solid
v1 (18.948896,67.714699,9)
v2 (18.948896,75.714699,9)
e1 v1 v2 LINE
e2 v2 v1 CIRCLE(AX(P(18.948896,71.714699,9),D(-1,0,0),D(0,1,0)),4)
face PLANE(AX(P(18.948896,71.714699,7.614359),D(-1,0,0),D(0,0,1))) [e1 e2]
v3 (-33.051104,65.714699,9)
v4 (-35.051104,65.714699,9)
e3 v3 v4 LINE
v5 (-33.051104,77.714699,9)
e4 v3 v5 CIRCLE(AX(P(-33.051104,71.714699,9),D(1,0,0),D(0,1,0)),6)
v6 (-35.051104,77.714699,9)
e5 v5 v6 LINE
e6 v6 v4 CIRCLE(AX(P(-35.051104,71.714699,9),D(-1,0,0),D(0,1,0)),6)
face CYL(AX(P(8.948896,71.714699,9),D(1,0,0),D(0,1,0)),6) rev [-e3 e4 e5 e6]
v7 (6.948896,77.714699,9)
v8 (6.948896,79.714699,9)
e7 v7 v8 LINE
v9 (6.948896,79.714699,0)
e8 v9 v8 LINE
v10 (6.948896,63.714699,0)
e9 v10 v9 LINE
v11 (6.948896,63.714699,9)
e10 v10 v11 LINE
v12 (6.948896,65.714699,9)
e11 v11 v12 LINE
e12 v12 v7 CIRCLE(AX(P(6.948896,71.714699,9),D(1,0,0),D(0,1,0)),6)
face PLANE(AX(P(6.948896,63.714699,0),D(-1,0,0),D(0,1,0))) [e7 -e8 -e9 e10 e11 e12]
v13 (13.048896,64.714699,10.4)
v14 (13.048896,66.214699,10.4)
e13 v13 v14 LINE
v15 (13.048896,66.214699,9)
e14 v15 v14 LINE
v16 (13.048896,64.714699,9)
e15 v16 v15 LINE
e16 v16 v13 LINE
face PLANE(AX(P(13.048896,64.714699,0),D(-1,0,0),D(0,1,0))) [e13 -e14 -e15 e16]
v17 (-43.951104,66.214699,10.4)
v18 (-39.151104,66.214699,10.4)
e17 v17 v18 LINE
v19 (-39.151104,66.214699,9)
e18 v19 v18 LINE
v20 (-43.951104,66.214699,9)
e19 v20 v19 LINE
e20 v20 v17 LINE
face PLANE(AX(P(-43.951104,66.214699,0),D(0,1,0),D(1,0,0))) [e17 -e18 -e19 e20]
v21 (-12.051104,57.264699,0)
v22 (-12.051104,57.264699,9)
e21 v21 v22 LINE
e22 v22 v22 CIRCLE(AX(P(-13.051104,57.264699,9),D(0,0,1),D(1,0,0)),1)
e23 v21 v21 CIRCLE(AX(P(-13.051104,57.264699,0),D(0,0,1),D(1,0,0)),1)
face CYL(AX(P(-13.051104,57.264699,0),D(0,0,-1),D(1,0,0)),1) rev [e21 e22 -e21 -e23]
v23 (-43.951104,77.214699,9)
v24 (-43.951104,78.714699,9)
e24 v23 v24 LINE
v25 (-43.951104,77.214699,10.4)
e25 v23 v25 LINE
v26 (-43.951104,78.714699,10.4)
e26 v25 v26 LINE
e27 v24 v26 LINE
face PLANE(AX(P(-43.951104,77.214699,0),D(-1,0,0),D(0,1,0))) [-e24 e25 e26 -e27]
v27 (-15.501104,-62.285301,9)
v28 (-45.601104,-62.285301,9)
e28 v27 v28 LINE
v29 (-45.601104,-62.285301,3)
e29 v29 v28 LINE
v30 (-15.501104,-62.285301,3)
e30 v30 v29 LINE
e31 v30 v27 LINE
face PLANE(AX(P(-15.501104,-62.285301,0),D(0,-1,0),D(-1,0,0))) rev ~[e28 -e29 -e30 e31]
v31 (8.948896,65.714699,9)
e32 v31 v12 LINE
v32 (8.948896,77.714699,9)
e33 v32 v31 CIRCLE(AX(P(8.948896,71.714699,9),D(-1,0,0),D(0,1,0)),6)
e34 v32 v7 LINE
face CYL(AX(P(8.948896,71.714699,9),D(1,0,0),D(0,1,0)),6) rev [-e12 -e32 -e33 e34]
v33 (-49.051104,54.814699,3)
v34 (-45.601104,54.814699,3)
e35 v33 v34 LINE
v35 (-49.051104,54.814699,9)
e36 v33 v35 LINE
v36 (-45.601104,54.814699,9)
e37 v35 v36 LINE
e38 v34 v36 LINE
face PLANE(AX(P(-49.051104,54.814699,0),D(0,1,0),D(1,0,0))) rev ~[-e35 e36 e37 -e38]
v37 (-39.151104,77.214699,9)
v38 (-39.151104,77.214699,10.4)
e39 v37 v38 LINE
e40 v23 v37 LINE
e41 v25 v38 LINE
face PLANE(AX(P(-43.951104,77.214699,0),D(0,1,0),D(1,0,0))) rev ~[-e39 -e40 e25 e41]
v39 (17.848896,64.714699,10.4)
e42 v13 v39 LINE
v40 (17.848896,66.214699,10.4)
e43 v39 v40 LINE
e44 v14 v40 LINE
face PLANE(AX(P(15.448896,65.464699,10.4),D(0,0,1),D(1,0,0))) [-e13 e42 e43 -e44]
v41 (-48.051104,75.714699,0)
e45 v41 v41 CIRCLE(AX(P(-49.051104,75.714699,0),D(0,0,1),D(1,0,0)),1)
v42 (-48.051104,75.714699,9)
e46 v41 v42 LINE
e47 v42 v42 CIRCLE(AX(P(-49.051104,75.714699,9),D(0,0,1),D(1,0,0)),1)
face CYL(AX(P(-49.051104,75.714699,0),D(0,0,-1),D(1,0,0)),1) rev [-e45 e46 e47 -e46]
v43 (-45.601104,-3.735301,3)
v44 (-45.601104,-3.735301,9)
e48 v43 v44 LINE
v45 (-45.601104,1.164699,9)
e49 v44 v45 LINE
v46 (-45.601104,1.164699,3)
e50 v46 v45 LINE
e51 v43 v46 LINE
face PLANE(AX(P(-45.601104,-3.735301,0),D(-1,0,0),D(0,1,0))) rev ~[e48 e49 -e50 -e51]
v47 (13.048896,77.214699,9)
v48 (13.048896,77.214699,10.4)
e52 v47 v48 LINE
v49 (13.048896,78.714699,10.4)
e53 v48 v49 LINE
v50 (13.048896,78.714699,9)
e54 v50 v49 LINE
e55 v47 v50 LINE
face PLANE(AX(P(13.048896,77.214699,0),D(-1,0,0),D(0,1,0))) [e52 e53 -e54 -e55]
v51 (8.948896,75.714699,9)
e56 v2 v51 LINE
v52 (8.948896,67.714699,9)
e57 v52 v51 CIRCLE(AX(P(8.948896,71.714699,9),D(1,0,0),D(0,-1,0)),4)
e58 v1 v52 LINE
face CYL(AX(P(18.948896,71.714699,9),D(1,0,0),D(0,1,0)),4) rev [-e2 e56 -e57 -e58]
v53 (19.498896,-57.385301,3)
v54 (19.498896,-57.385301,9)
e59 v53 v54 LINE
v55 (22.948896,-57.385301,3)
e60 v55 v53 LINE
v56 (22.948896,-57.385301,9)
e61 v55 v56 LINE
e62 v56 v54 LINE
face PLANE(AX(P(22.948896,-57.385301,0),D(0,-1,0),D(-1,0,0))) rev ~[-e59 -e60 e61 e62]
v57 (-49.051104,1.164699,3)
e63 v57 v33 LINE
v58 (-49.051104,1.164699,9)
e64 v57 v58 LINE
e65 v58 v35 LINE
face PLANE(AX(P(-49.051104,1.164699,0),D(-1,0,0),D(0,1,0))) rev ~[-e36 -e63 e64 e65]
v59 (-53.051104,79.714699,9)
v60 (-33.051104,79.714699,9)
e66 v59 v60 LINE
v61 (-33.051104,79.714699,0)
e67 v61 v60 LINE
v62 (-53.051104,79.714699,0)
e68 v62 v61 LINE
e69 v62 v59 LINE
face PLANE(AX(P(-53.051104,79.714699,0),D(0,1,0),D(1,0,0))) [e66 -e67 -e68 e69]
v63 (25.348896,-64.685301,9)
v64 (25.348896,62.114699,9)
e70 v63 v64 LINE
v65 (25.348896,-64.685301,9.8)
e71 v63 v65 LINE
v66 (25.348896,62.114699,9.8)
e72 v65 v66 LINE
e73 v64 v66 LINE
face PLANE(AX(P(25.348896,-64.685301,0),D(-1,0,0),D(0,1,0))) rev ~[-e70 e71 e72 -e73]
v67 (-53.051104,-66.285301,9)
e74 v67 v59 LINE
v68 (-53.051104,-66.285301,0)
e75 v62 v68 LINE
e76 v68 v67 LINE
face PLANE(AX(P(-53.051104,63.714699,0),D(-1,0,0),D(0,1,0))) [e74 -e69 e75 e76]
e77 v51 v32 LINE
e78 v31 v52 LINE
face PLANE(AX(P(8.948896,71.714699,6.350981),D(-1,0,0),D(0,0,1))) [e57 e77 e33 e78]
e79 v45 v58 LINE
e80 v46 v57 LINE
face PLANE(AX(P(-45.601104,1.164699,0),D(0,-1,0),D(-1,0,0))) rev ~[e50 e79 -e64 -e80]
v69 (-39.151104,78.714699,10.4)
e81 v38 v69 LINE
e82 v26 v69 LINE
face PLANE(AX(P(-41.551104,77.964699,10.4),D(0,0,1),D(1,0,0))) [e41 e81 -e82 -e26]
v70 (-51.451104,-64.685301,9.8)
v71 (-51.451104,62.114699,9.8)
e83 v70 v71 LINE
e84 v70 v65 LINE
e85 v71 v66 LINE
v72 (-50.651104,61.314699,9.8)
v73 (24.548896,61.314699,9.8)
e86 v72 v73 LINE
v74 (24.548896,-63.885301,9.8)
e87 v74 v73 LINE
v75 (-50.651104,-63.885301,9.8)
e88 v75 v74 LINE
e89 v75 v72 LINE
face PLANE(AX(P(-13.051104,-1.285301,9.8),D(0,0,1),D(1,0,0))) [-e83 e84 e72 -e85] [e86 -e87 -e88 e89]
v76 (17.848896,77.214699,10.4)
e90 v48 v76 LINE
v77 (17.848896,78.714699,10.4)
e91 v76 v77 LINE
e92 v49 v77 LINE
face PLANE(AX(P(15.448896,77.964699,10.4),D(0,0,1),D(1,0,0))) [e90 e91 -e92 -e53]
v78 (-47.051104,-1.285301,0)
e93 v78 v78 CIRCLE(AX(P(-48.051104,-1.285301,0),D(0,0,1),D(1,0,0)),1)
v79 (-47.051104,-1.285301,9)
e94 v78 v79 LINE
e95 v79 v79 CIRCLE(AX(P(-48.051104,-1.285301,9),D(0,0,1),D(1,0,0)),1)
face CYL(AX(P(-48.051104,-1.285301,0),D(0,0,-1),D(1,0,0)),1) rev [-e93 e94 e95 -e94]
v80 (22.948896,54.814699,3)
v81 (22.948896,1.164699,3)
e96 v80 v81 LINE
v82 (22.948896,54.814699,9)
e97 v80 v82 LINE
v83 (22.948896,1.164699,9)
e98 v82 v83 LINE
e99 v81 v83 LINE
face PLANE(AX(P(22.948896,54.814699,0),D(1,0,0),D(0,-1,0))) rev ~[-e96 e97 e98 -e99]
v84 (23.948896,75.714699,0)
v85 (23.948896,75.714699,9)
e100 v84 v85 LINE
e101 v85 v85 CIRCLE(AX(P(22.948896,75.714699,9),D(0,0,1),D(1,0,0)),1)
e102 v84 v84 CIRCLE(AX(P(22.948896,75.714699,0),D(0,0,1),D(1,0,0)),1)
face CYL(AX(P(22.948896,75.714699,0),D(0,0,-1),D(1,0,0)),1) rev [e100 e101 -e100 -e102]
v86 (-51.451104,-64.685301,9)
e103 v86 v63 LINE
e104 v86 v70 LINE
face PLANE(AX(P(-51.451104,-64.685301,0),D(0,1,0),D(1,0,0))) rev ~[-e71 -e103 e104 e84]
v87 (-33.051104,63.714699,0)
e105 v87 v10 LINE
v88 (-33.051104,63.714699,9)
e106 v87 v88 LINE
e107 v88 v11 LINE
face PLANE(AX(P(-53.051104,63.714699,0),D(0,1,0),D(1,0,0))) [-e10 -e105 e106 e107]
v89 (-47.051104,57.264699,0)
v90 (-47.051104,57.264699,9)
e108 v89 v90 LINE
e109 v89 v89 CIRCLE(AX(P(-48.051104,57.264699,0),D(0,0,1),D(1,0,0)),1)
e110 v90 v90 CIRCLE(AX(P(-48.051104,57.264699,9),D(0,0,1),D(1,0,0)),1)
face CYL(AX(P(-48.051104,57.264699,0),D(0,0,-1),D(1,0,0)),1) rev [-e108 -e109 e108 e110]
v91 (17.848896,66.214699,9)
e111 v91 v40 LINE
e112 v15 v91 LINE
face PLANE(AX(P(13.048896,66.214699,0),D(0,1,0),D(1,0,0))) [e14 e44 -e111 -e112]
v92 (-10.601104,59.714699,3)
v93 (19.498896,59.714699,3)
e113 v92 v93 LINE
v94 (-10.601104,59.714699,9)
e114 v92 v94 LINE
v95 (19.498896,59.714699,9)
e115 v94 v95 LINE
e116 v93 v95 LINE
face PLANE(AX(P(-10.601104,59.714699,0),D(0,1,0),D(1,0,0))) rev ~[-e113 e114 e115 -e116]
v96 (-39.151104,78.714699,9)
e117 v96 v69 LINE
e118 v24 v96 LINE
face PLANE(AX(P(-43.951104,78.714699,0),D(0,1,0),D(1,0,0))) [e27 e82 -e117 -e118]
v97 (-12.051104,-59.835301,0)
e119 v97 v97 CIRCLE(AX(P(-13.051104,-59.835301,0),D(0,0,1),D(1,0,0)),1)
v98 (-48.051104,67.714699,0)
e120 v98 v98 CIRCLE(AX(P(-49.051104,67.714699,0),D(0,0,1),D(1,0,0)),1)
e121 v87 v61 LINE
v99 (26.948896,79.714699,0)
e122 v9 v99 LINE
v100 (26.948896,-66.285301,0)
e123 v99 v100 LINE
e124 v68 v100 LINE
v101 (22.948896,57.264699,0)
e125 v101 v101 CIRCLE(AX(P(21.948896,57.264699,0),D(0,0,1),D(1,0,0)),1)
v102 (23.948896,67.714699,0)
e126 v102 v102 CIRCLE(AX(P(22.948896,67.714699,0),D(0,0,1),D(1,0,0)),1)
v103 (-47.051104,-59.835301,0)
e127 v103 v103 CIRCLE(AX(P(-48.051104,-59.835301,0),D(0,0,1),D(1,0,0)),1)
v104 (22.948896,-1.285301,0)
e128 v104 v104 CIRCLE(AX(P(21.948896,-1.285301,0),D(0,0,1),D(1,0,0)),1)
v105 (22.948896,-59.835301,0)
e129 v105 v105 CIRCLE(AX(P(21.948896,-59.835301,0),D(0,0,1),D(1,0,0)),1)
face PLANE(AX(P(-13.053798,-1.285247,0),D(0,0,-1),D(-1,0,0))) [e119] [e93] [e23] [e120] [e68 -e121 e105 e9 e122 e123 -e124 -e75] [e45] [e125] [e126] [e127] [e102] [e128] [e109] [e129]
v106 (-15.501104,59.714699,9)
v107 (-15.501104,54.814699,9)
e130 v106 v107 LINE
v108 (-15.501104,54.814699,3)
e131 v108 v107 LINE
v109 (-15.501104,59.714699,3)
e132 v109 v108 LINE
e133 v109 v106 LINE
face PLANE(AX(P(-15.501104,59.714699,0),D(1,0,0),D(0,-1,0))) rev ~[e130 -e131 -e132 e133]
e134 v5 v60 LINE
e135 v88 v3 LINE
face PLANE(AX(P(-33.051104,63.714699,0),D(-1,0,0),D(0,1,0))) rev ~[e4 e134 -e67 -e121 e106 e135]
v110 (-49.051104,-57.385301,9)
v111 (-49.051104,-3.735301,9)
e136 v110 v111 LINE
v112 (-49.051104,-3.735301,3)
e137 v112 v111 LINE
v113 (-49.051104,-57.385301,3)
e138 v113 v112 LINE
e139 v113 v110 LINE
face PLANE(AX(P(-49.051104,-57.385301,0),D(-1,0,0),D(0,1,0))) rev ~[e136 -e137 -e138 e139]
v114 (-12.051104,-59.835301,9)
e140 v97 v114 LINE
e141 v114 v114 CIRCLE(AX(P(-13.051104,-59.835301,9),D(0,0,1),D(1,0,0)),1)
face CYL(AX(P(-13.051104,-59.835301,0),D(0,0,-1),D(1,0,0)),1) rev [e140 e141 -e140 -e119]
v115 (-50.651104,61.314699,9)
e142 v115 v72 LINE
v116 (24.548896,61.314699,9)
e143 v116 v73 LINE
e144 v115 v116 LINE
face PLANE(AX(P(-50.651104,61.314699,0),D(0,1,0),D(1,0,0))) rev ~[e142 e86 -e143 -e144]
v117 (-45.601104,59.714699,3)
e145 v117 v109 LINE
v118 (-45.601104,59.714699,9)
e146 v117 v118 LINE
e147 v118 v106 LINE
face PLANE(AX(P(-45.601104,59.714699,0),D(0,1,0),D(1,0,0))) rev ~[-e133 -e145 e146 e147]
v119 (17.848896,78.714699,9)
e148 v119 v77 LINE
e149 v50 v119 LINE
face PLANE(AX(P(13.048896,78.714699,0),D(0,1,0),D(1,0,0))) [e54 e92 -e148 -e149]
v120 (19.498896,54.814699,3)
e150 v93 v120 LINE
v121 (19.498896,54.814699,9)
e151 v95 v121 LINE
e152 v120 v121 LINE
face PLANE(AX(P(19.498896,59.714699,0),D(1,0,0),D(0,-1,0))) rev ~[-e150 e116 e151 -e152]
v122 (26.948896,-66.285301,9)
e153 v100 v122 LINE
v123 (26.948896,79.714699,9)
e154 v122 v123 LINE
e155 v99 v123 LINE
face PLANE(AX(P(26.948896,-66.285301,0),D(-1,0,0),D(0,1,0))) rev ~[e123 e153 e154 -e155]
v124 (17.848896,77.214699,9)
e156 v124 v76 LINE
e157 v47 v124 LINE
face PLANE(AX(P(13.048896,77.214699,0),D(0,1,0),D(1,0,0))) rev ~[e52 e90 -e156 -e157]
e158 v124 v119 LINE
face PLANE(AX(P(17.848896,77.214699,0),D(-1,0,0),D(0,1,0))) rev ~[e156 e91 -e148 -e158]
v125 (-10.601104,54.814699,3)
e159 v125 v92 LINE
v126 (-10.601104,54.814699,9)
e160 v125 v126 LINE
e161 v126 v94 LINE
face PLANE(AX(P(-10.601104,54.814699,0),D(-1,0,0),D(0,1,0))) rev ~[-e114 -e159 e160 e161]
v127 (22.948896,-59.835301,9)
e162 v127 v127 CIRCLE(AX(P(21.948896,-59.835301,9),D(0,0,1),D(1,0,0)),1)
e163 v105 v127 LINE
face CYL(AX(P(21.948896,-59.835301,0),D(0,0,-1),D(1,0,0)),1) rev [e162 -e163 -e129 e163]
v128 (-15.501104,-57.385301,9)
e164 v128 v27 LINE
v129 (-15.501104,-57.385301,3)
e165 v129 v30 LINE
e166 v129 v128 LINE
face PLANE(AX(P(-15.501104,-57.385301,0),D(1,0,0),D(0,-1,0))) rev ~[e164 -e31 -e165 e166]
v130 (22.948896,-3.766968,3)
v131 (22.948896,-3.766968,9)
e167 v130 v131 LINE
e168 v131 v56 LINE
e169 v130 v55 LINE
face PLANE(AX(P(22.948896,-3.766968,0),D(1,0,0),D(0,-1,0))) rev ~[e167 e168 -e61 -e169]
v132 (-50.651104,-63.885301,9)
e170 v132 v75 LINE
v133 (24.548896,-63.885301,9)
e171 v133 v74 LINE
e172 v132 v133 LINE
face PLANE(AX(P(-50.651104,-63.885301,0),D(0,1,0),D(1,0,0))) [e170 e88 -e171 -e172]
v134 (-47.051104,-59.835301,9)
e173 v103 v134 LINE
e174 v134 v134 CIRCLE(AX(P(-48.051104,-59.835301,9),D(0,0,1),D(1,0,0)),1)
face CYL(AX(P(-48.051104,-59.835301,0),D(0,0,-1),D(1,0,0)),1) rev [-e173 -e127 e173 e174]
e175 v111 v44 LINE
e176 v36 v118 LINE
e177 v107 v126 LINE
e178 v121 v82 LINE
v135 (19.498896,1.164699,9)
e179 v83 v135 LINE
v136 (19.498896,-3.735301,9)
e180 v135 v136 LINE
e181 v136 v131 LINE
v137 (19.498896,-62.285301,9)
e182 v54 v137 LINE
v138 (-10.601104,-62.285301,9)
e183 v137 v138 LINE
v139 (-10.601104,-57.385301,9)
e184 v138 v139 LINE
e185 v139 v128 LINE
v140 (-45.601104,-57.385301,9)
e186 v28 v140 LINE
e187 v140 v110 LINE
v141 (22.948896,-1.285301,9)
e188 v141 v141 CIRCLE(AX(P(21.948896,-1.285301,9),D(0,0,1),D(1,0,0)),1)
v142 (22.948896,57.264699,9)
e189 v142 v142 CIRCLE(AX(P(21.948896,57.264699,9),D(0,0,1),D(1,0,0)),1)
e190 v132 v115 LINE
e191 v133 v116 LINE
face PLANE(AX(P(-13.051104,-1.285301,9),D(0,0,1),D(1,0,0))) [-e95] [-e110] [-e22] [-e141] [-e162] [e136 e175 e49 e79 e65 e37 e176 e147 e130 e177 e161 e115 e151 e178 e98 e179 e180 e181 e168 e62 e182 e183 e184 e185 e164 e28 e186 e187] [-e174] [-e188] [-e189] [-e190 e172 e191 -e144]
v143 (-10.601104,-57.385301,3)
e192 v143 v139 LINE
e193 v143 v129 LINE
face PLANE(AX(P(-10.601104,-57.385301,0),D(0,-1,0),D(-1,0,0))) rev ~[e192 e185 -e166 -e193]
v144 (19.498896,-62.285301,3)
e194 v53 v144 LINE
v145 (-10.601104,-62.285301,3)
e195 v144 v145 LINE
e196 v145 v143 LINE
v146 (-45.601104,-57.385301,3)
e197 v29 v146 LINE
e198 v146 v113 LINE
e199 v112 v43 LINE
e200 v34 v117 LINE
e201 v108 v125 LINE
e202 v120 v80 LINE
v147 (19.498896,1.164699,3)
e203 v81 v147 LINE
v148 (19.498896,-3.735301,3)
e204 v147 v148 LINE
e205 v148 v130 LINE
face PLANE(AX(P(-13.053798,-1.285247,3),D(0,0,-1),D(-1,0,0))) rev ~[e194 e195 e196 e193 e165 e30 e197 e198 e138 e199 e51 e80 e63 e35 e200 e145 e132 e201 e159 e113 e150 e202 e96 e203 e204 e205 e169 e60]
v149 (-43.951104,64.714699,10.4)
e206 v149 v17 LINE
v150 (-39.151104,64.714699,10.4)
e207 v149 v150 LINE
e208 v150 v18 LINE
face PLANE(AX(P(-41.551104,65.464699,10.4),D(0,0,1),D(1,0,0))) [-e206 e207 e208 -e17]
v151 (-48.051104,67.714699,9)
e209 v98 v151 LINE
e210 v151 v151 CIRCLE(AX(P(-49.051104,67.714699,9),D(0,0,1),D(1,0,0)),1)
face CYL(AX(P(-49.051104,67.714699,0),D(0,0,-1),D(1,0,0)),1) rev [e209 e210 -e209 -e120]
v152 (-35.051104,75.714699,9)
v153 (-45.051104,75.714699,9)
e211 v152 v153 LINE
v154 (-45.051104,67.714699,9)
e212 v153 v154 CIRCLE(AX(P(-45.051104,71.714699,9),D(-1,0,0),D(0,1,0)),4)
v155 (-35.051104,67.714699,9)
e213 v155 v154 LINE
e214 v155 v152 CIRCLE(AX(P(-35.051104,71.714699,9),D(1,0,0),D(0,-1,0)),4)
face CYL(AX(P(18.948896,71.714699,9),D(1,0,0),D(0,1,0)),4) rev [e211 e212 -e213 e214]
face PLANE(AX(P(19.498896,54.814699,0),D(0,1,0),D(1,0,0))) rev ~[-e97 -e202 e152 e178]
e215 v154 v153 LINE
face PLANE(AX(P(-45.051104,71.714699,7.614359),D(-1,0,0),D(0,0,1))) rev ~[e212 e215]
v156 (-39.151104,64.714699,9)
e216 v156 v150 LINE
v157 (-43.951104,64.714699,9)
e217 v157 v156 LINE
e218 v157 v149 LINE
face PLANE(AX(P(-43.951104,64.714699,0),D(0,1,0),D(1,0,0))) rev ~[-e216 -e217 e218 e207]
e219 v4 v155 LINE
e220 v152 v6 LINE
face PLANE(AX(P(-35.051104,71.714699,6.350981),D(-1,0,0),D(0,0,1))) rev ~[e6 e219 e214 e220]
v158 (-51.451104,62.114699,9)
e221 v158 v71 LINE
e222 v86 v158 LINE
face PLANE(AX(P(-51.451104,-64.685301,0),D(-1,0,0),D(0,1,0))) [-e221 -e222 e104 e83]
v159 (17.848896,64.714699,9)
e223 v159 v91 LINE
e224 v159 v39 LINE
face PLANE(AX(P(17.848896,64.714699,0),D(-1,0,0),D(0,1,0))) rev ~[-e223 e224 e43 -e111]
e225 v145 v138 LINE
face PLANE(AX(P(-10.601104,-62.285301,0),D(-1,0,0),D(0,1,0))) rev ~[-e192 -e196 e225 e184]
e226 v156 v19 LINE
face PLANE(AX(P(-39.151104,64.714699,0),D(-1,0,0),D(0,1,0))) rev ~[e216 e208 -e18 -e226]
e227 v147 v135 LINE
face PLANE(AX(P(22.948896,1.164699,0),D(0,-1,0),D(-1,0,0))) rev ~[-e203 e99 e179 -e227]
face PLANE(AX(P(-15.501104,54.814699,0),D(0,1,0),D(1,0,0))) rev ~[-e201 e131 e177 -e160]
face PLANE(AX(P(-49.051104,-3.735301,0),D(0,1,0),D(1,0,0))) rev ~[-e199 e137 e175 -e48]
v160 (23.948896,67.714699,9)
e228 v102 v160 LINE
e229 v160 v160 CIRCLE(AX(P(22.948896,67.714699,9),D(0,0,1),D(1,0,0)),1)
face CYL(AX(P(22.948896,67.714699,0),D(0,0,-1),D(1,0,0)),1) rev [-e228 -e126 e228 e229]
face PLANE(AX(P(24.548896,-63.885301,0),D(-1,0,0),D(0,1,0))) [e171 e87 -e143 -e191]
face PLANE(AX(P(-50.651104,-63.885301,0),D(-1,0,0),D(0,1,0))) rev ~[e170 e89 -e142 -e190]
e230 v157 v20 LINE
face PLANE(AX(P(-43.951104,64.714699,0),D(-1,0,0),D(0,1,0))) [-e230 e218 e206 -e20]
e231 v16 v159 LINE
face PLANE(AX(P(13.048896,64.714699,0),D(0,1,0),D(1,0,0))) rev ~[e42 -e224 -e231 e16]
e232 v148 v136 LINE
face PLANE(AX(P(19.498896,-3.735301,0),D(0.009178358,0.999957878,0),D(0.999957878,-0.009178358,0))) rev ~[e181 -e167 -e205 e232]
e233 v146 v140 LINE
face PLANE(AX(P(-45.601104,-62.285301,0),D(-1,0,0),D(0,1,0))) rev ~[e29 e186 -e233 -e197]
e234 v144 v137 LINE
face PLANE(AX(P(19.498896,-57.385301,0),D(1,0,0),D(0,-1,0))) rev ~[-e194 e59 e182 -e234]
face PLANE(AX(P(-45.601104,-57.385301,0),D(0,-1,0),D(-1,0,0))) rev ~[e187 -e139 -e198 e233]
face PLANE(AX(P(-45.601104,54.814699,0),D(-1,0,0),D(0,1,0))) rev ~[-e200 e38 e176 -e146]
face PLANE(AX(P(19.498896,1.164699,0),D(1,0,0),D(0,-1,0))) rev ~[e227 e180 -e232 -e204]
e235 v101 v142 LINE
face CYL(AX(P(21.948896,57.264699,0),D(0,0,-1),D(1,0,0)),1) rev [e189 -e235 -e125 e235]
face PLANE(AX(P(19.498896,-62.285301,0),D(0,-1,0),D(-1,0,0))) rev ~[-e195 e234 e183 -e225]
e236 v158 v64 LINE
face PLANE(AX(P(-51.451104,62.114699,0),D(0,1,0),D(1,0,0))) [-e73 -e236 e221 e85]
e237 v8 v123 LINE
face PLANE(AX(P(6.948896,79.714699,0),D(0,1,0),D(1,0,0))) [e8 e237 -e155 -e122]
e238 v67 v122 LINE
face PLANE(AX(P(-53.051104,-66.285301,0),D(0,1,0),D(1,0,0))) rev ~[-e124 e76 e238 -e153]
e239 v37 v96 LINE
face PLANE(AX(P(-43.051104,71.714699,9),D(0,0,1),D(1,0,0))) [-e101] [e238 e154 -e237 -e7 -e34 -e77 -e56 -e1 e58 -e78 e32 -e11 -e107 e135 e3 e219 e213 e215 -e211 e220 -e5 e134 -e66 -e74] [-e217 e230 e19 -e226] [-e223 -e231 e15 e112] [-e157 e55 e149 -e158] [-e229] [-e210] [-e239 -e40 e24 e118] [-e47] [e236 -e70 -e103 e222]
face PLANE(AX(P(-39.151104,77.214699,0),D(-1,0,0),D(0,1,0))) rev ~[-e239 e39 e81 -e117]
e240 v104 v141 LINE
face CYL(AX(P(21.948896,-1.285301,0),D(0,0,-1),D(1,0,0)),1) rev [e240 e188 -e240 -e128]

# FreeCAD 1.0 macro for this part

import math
import FreeCAD as App
import Part
import Sketcher

V = App.Vector

doc = App.newDocument("Part")
body = doc.addObject("PartDesign::Body", "Body")
body.AllowCompound = True

sketch1 = doc.addObject("Sketcher::SketchObject", "Sketch")
body.addObject(sketch1)
sketch1.AttachmentSupport = (doc.XY_Plane, [""])
sketch1.MapMode = "FlatFace"
sketch1.addGeometry([
    Part.LineSegment(V(-53.1, -66.3, 0), V(26.9, -66.3, 0)),
    Part.LineSegment(V(26.9, -66.3, 0), V(26.9, 79.7, 0)),
    Part.LineSegment(V(26.9, 79.7, 0), V(6.9, 79.7, 0)),
    Part.LineSegment(V(6.9, 79.7, 0), V(6.9, 63.7, 0)),
    Part.LineSegment(V(6.9, 63.7, 0), V(-33.1, 63.7, 0)),
    Part.LineSegment(V(-33.1, 63.7, 0), V(-33.1, 79.7, 0)),
    Part.LineSegment(V(-33.1, 79.7, 0), V(-53.1, 79.7, 0)),
    Part.LineSegment(V(-53.1, 79.7, 0), V(-53.1, -66.3, 0)),
    Part.LineSegment(V(25.3, -64.7, 0), V(-51.5, -64.7, 0)),
    Part.LineSegment(V(-51.5, -64.7, 0), V(-51.5, 62.1, 0)),
    Part.LineSegment(V(-51.5, 62.1, 0), V(25.3, 62.1, 0)),
    Part.LineSegment(V(25.3, 62.1, 0), V(25.3, -64.7, 0)),
    Part.LineSegment(V(-44, 77.2, 0), V(-44, 78.7, 0)),
    Part.LineSegment(V(-44, 78.7, 0), V(-39.2, 78.7, 0)),
    Part.LineSegment(V(-39.2, 78.7, 0), V(-39.2, 77.2, 0)),
    Part.LineSegment(V(-39.2, 77.2, 0), V(-44, 77.2, 0)),
    Part.Circle(V(-49.1, 67.7, 0), V(0, 0, 1), 1),
    Part.LineSegment(V(-39.2, 64.7, 0), V(-44, 64.7, 0)),
    Part.LineSegment(V(-44, 64.7, 0), V(-44, 66.2, 0)),
    Part.LineSegment(V(-44, 66.2, 0), V(-39.2, 66.2, 0)),
    Part.LineSegment(V(-39.2, 66.2, 0), V(-39.2, 64.7, 0)),
    Part.Circle(V(-49.1, 75.7, 0), V(0, 0, 1), 1),
    Part.Circle(V(22.9, 75.7, 0), V(0, 0, 1), 1),
    Part.LineSegment(V(17.8, 64.7, 0), V(13, 64.7, 0)),
    Part.LineSegment(V(13, 64.7, 0), V(13, 66.2, 0)),
    Part.LineSegment(V(13, 66.2, 0), V(17.8, 66.2, 0)),
    Part.LineSegment(V(17.8, 66.2, 0), V(17.8, 64.7, 0)),
    Part.Circle(V(22.9, 67.7, 0), V(0, 0, 1), 1),
    Part.LineSegment(V(17.8, 77.2, 0), V(13, 77.2, 0)),
    Part.LineSegment(V(13, 77.2, 0), V(13, 78.7, 0)),
    Part.LineSegment(V(13, 78.7, 0), V(17.8, 78.7, 0)),
    Part.LineSegment(V(17.8, 78.7, 0), V(17.8, 77.2, 0)),
    Part.LineSegment(V(-50.7, 61.3, 0), V(-50.7, -63.9, 0)),
    Part.LineSegment(V(-50.7, -63.9, 0), V(24.5, -63.9, 0)),
    Part.LineSegment(V(24.5, -63.9, 0), V(24.5, 61.3, 0)),
    Part.LineSegment(V(24.5, 61.3, 0), V(-50.7, 61.3, 0)),
    Part.Circle(V(-48.1, -59.8, 0), V(0, 0, 1), 1),
    Part.Circle(V(-13.1, -59.8, 0), V(0, 0, 1), 1),
    Part.Circle(V(21.9, -59.8, 0), V(0, 0, 1), 1),
    Part.Circle(V(-48.1, -1.3, 0), V(0, 0, 1), 1),
    Part.Circle(V(-48.1, 57.3, 0), V(0, 0, 1), 1),
    Part.LineSegment(V(-45.6, 1.2, 0), V(-49.1, 1.2, 0)),
    Part.LineSegment(V(-49.1, 1.2, 0), V(-49.1, 54.8, 0)),
    Part.LineSegment(V(-49.1, 54.8, 0), V(-45.6, 54.8, 0)),
    Part.LineSegment(V(-45.6, 54.8, 0), V(-45.6, 59.7, 0)),
    Part.LineSegment(V(-45.6, 59.7, 0), V(-15.5, 59.7, 0)),
    Part.LineSegment(V(-15.5, 59.7, 0), V(-15.5, 54.8, 0)),
    Part.LineSegment(V(-15.5, 54.8, 0), V(-10.6, 54.8, 0)),
    Part.LineSegment(V(-10.6, 54.8, 0), V(-10.6, 59.7, 0)),
    Part.LineSegment(V(-10.6, 59.7, 0), V(19.5, 59.7, 0)),
    Part.LineSegment(V(19.5, 59.7, 0), V(19.5, 54.8, 0)),
    Part.LineSegment(V(19.5, 54.8, 0), V(22.9, 54.8, 0)),
    Part.LineSegment(V(22.9, 54.8, 0), V(22.9, 1.2, 0)),
    Part.LineSegment(V(22.9, 1.2, 0), V(19.5, 1.2, 0)),
    Part.LineSegment(V(19.5, 1.2, 0), V(19.5, -3.7, 0)),
    Part.LineSegment(V(19.5, -3.7, 0), V(22.9, -3.8, 0)),
    Part.LineSegment(V(22.9, -3.8, 0), V(22.9, -57.4, 0)),
    Part.LineSegment(V(22.9, -57.4, 0), V(19.5, -57.4, 0)),
    Part.LineSegment(V(19.5, -57.4, 0), V(19.5, -62.3, 0)),
    Part.LineSegment(V(19.5, -62.3, 0), V(-10.6, -62.3, 0)),
    Part.LineSegment(V(-10.6, -62.3, 0), V(-10.6, -57.4, 0)),
    Part.LineSegment(V(-10.6, -57.4, 0), V(-15.5, -57.4, 0)),
    Part.LineSegment(V(-15.5, -57.4, 0), V(-15.5, -62.3, 0)),
    Part.LineSegment(V(-15.5, -62.3, 0), V(-45.6, -62.3, 0)),
    Part.LineSegment(V(-45.6, -62.3, 0), V(-45.6, -57.4, 0)),
    Part.LineSegment(V(-45.6, -57.4, 0), V(-49.1, -57.4, 0)),
    Part.LineSegment(V(-49.1, -57.4, 0), V(-49.1, -3.7, 0)),
    Part.LineSegment(V(-49.1, -3.7, 0), V(-45.6, -3.7, 0)),
    Part.LineSegment(V(-45.6, -3.7, 0), V(-45.6, 1.2, 0)),
    Part.Circle(V(21.9, -1.3, 0), V(0, 0, 1), 1),
    Part.Circle(V(-13.1, 57.3, 0), V(0, 0, 1), 1),
    Part.Circle(V(21.9, 57.3, 0), V(0, 0, 1), 1),
], False)
sketch1.addConstraint([
    Sketcher.Constraint("Coincident", 0, 2, 1, 1),
    Sketcher.Constraint("Coincident", 1, 2, 2, 1),
    Sketcher.Constraint("Coincident", 2, 2, 3, 1),
    Sketcher.Constraint("Coincident", 3, 2, 4, 1),
    Sketcher.Constraint("Coincident", 4, 2, 5, 1),
    Sketcher.Constraint("Coincident", 5, 2, 6, 1),
    Sketcher.Constraint("Coincident", 6, 2, 7, 1),
    Sketcher.Constraint("Coincident", 7, 2, 0, 1),
    Sketcher.Constraint("Coincident", 8, 2, 9, 1),
    Sketcher.Constraint("Coincident", 9, 2, 10, 1),
    Sketcher.Constraint("Coincident", 10, 2, 11, 1),
    Sketcher.Constraint("Coincident", 11, 2, 8, 1),
    Sketcher.Constraint("Coincident", 12, 2, 13, 1),
    Sketcher.Constraint("Coincident", 13, 2, 14, 1),
    Sketcher.Constraint("Coincident", 14, 2, 15, 1),
    Sketcher.Constraint("Coincident", 15, 2, 12, 1),
    Sketcher.Constraint("Coincident", 17, 2, 18, 1),
    Sketcher.Constraint("Coincident", 18, 2, 19, 1),
    Sketcher.Constraint("Coincident", 19, 2, 20, 1),
    Sketcher.Constraint("Coincident", 20, 2, 17, 1),
    Sketcher.Constraint("Coincident", 23, 2, 24, 1),
    Sketcher.Constraint("Coincident", 24, 2, 25, 1),
    Sketcher.Constraint("Coincident", 25, 2, 26, 1),
    Sketcher.Constraint("Coincident", 26, 2, 23, 1),
    Sketcher.Constraint("Coincident", 28, 2, 29, 1),
    Sketcher.Constraint("Coincident", 29, 2, 30, 1),
    Sketcher.Constraint("Coincident", 30, 2, 31, 1),
    Sketcher.Constraint("Coincident", 31, 2, 28, 1),
    Sketcher.Constraint("Coincident", 32, 2, 33, 1),
    Sketcher.Constraint("Coincident", 33, 2, 34, 1),
    Sketcher.Constraint("Coincident", 34, 2, 35, 1),
    Sketcher.Constraint("Coincident", 35, 2, 32, 1),
    Sketcher.Constraint("Coincident", 41, 2, 42, 1),
    Sketcher.Constraint("Coincident", 42, 2, 43, 1),
    Sketcher.Constraint("Coincident", 43, 2, 44, 1),
    Sketcher.Constraint("Coincident", 44, 2, 45, 1),
    Sketcher.Constraint("Coincident", 45, 2, 46, 1),
    Sketcher.Constraint("Coincident", 46, 2, 47, 1),
    Sketcher.Constraint("Coincident", 47, 2, 48, 1),
    Sketcher.Constraint("Coincident", 48, 2, 49, 1),
    Sketcher.Constraint("Coincident", 49, 2, 50, 1),
    Sketcher.Constraint("Coincident", 50, 2, 51, 1),
    Sketcher.Constraint("Coincident", 51, 2, 52, 1),
    Sketcher.Constraint("Coincident", 52, 2, 53, 1),
    Sketcher.Constraint("Coincident", 53, 2, 54, 1),
    Sketcher.Constraint("Coincident", 54, 2, 55, 1),
    Sketcher.Constraint("Coincident", 55, 2, 56, 1),
    Sketcher.Constraint("Coincident", 56, 2, 57, 1),
    Sketcher.Constraint("Coincident", 57, 2, 58, 1),
    Sketcher.Constraint("Coincident", 58, 2, 59, 1),
    Sketcher.Constraint("Coincident", 59, 2, 60, 1),
    Sketcher.Constraint("Coincident", 60, 2, 61, 1),
    Sketcher.Constraint("Coincident", 61, 2, 62, 1),
    Sketcher.Constraint("Coincident", 62, 2, 63, 1),
    Sketcher.Constraint("Coincident", 63, 2, 64, 1),
    Sketcher.Constraint("Coincident", 64, 2, 65, 1),
    Sketcher.Constraint("Coincident", 65, 2, 66, 1),
    Sketcher.Constraint("Coincident", 66, 2, 67, 1),
    Sketcher.Constraint("Coincident", 67, 2, 68, 1),
    Sketcher.Constraint("Coincident", 68, 2, 41, 1),
    Sketcher.Constraint("Horizontal", 0),
    Sketcher.Constraint("Vertical", 1),
    Sketcher.Constraint("Horizontal", 2),
    Sketcher.Constraint("Vertical", 3),
    Sketcher.Constraint("Horizontal", 4),
    Sketcher.Constraint("Vertical", 5),
    Sketcher.Constraint("Horizontal", 6),
    Sketcher.Constraint("Vertical", 7),
    Sketcher.Constraint("Horizontal", 8),
    Sketcher.Constraint("Vertical", 9),
    Sketcher.Constraint("Horizontal", 10),
    Sketcher.Constraint("Vertical", 11),
    Sketcher.Constraint("Vertical", 12),
    Sketcher.Constraint("Horizontal", 13),
    Sketcher.Constraint("Vertical", 14),
    Sketcher.Constraint("Horizontal", 15),
    Sketcher.Constraint("Horizontal", 17),
    Sketcher.Constraint("Vertical", 18),
    Sketcher.Constraint("Horizontal", 19),
    Sketcher.Constraint("Vertical", 20),
    Sketcher.Constraint("Horizontal", 23),
    Sketcher.Constraint("Vertical", 24),
    Sketcher.Constraint("Horizontal", 25),
    Sketcher.Constraint("Vertical", 26),
    Sketcher.Constraint("Horizontal", 28),
    Sketcher.Constraint("Vertical", 29),
    Sketcher.Constraint("Horizontal", 30),
    Sketcher.Constraint("Vertical", 31),
    Sketcher.Constraint("Vertical", 32),
    Sketcher.Constraint("Horizontal", 33),
    Sketcher.Constraint("Vertical", 34),
    Sketcher.Constraint("Horizontal", 35),
    Sketcher.Constraint("Horizontal", 41),
    Sketcher.Constraint("Vertical", 42),
    Sketcher.Constraint("Horizontal", 43),
    Sketcher.Constraint("Vertical", 44),
    Sketcher.Constraint("Horizontal", 45),
    Sketcher.Constraint("Vertical", 46),
    Sketcher.Constraint("Horizontal", 47),
    Sketcher.Constraint("Vertical", 48),
    Sketcher.Constraint("Horizontal", 49),
    Sketcher.Constraint("Vertical", 50),
    Sketcher.Constraint("Horizontal", 51),
    Sketcher.Constraint("Vertical", 52),
    Sketcher.Constraint("Horizontal", 53),
    Sketcher.Constraint("Vertical", 54),
    Sketcher.Constraint("Vertical", 56),
    Sketcher.Constraint("Horizontal", 57),
    Sketcher.Constraint("Vertical", 58),
    Sketcher.Constraint("Horizontal", 59),
    Sketcher.Constraint("Vertical", 60),
    Sketcher.Constraint("Horizontal", 61),
    Sketcher.Constraint("Vertical", 62),
    Sketcher.Constraint("Horizontal", 63),
    Sketcher.Constraint("Vertical", 64),
    Sketcher.Constraint("Horizontal", 65),
    Sketcher.Constraint("Vertical", 66),
    Sketcher.Constraint("Horizontal", 67),
    Sketcher.Constraint("Vertical", 68),
    Sketcher.Constraint("Equal", 16, 21),
    Sketcher.Constraint("Equal", 21, 22),
    Sketcher.Constraint("Equal", 22, 27),
    Sketcher.Constraint("Equal", 27, 36),
    Sketcher.Constraint("Equal", 36, 37),
    Sketcher.Constraint("Equal", 37, 38),
    Sketcher.Constraint("Equal", 38, 39),
    Sketcher.Constraint("Equal", 39, 40),
    Sketcher.Constraint("Equal", 40, 69),
    Sketcher.Constraint("Equal", 69, 70),
    Sketcher.Constraint("Equal", 70, 71),
    Sketcher.Constraint("Horizontal", 21, 3, 22, 3),
    Sketcher.Constraint("Horizontal", 16, 3, 27, 3),
    Sketcher.Constraint("Horizontal", 36, 3, 37, 3),
    Sketcher.Constraint("Horizontal", 37, 3, 38, 3),
    Sketcher.Constraint("Horizontal", 39, 3, 69, 3),
    Sketcher.Constraint("Horizontal", 40, 3, 70, 3),
    Sketcher.Constraint("Horizontal", 70, 3, 71, 3),
    Sketcher.Constraint("Horizontal", 2, 2, 5, 2),
    Sketcher.Constraint("Horizontal", 20, 2, 23, 2),
    Sketcher.Constraint("Horizontal", 19, 2, 24, 2),
    Sketcher.Constraint("Horizontal", 15, 2, 28, 2),
    Sketcher.Constraint("Horizontal", 13, 2, 29, 2),
    Sketcher.Constraint("Horizontal", 43, 2, 46, 2),
    Sketcher.Constraint("Horizontal", 45, 2, 48, 2),
    Sketcher.Constraint("Horizontal", 47, 2, 50, 2),
    Sketcher.Constraint("Horizontal", 41, 2, 52, 2),
    Sketcher.Constraint("Horizontal", 57, 2, 60, 2),
    Sketcher.Constraint("Horizontal", 59, 2, 62, 2),
    Sketcher.Constraint("Horizontal", 61, 2, 64, 2),
    Sketcher.Constraint("Horizontal", 54, 2, 66, 2),
    Sketcher.Constraint("Vertical", 16, 3, 21, 3),
    Sketcher.Constraint("Vertical", 22, 3, 27, 3),
    Sketcher.Constraint("Vertical", 36, 3, 39, 3),
    Sketcher.Constraint("Vertical", 39, 3, 40, 3),
    Sketcher.Constraint("Vertical", 38, 3, 69, 3),
    Sketcher.Constraint("Vertical", 37, 3, 70, 3),
    Sketcher.Constraint("Vertical", 69, 3, 71, 3),
    Sketcher.Constraint("Vertical", 15, 2, 17, 2),
    Sketcher.Constraint("Vertical", 14, 2, 19, 2),
    Sketcher.Constraint("Vertical", 24, 2, 28, 2),
    Sketcher.Constraint("Vertical", 26, 2, 30, 2),
    Sketcher.Constraint("Vertical", 21, 3, 41, 2),
    Sketcher.Constraint("Vertical", 27, 3, 51, 2),
    Sketcher.Constraint("Vertical", 50, 2, 53, 2),
    Sketcher.Constraint("Vertical", 52, 2, 55, 2),
    Sketcher.Constraint("Vertical", 54, 2, 57, 2),
    Sketcher.Constraint("Vertical", 48, 2, 59, 2),
    Sketcher.Constraint("Vertical", 46, 2, 61, 2),
    Sketcher.Constraint("Vertical", 44, 2, 63, 2),
    Sketcher.Constraint("Vertical", 42, 2, 65, 2),
    Sketcher.Constraint("Vertical", 64, 2, 67, 2),
    Sketcher.Constraint("Equal", 2, 6),
    Sketcher.Constraint("Equal", 19, 23),
    Sketcher.Constraint("Equal", 45, 49),
    Sketcher.Constraint("Equal", 43, 51),
    Sketcher.Constraint("Equal", 14, 18),
    Sketcher.Constraint("Equal", 61, 44),
    Sketcher.Constraint("Equal", 50, 54),
    Sketcher.Constraint("Equal", 54, 58),
    Sketcher.Constraint("Equal", 52, 66),
    Sketcher.Constraint("Diameter", 16, 2.0),
    Sketcher.Constraint("DistanceX", 0, 1, 0, 2, 80.0),
    Sketcher.Constraint("DistanceX", 2, 2, 2, 1, 20.0),
    Sketcher.Constraint("DistanceY", 1, 1, 1, 2, 146.0),
    Sketcher.Constraint("DistanceY", 3, 2, 3, 1, 16.0),
    Sketcher.Constraint("DistanceX", 8, 2, 8, 1, 76.8),
    Sketcher.Constraint("DistanceX", 13, 1, 13, 2, 4.8),
    Sketcher.Constraint("DistanceX", 33, 1, 33, 2, 75.2),
    Sketcher.Constraint("DistanceX", 45, 1, 45, 2, 30.1),
    Sketcher.Constraint("DistanceX", 47, 1, 47, 2, 4.9),
    Sketcher.Constraint("DistanceY", 9, 1, 9, 2, 126.8),
    Sketcher.Constraint("DistanceY", 12, 1, 12, 2, 1.5),
    Sketcher.Constraint("DistanceY", 32, 2, 32, 1, 125.2),
    Sketcher.Constraint("DistanceX", 41, 2, 41, 1, 3.45),
    Sketcher.Constraint("DistanceY", 42, 1, 42, 2, 53.65),
    Sketcher.Constraint("DistanceY", -1, 1, 16, 3, 67.714699),
    Sketcher.Constraint("DistanceY", -1, 1, 21, 3, 75.714699),
    Sketcher.Constraint("DistanceY", 36, 3, -1, 1, 59.835301),
    Sketcher.Constraint("DistanceY", 39, 3, -1, 1, 1.285301),
    Sketcher.Constraint("DistanceY", -1, 1, 40, 3, 57.264699),
    Sketcher.Constraint("DistanceY", 0, 2, -1, 1, 66.285301),
    Sketcher.Constraint("DistanceY", 8, 2, -1, 1, 64.685301),
    Sketcher.Constraint("DistanceY", -1, 1, 12, 2, 78.714699),
    Sketcher.Constraint("DistanceY", -1, 1, 17, 2, 64.714699),
    Sketcher.Constraint("DistanceY", 32, 2, -1, 1, 63.885301),
    Sketcher.Constraint("DistanceY", -1, 1, 41, 2, 1.164699),
    Sketcher.Constraint("DistanceY", 56, 2, 56, 1, 53.618333),
    Sketcher.Constraint("DistanceX", 16, 3, -1, 1, 49.051104),
    Sketcher.Constraint("DistanceX", 36, 3, -1, 1, 48.051104),
    Sketcher.Constraint("DistanceX", 37, 3, -1, 1, 13.051104),
    Sketcher.Constraint("DistanceX", -1, 1, 38, 3, 21.948896),
    Sketcher.Constraint("DistanceX", -1, 1, 0, 2, 26.948896),
    Sketcher.Constraint("DistanceX", 8, 2, -1, 1, 51.451104),
    Sketcher.Constraint("DistanceX", 12, 2, -1, 1, 43.951104),
    Sketcher.Constraint("DistanceX", -1, 1, 23, 2, 13.048896),
    Sketcher.Constraint("DistanceX", 32, 2, -1, 1, 50.651104),
])
pad1 = doc.addObject("PartDesign::Pad", "Pad")
body.addObject(pad1)
pad1.Profile = sketch1
pad1.Length = 9

sketch2 = doc.addObject("Sketcher::SketchObject", "Sketch001")
body.addObject(sketch2)
sketch2.AttachmentSupport = (doc.XY_Plane, [""])
sketch2.MapMode = "FlatFace"
sketch2.addGeometry([
    Part.LineSegment(V(13, 66.2, 0), V(13, 64.7, 0)),
    Part.LineSegment(V(13, 64.7, 0), V(17.8, 64.7, 0)),
    Part.LineSegment(V(17.8, 64.7, 0), V(17.8, 66.2, 0)),
    Part.LineSegment(V(17.8, 66.2, 0), V(13, 66.2, 0)),
    Part.LineSegment(V(13, 78.7, 0), V(13, 77.2, 0)),
    Part.LineSegment(V(13, 77.2, 0), V(17.8, 77.2, 0)),
    Part.LineSegment(V(17.8, 77.2, 0), V(17.8, 78.7, 0)),
    Part.LineSegment(V(17.8, 78.7, 0), V(13, 78.7, 0)),
    Part.LineSegment(V(-44, 78.7, 0), V(-44, 77.2, 0)),
    Part.LineSegment(V(-44, 77.2, 0), V(-39.2, 77.2, 0)),
    Part.LineSegment(V(-39.2, 77.2, 0), V(-39.2, 78.7, 0)),
    Part.LineSegment(V(-39.2, 78.7, 0), V(-44, 78.7, 0)),
    Part.LineSegment(V(-44, 66.2, 0), V(-44, 64.7, 0)),
    Part.LineSegment(V(-44, 64.7, 0), V(-39.2, 64.7, 0)),
    Part.LineSegment(V(-39.2, 64.7, 0), V(-39.2, 66.2, 0)),
    Part.LineSegment(V(-39.2, 66.2, 0), V(-44, 66.2, 0)),
], False)
sketch2.addConstraint([
    Sketcher.Constraint("Coincident", 0, 2, 1, 1),
    Sketcher.Constraint("Coincident", 1, 2, 2, 1),
    Sketcher.Constraint("Coincident", 2, 2, 3, 1),
    Sketcher.Constraint("Coincident", 3, 2, 0, 1),
    Sketcher.Constraint("Coincident", 4, 2, 5, 1),
    Sketcher.Constraint("Coincident", 5, 2, 6, 1),
    Sketcher.Constraint("Coincident", 6, 2, 7, 1),
    Sketcher.Constraint("Coincident", 7, 2, 4, 1),
    Sketcher.Constraint("Coincident", 8, 2, 9, 1),
    Sketcher.Constraint("Coincident", 9, 2, 10, 1),
    Sketcher.Constraint("Coincident", 10, 2, 11, 1),
    Sketcher.Constraint("Coincident", 11, 2, 8, 1),
    Sketcher.Constraint("Coincident", 12, 2, 13, 1),
    Sketcher.Constraint("Coincident", 13, 2, 14, 1),
    Sketcher.Constraint("Coincident", 14, 2, 15, 1),
    Sketcher.Constraint("Coincident", 15, 2, 12, 1),
    Sketcher.Constraint("Vertical", 0),
    Sketcher.Constraint("Horizontal", 1),
    Sketcher.Constraint("Vertical", 2),
    Sketcher.Constraint("Horizontal", 3),
    Sketcher.Constraint("Vertical", 4),
    Sketcher.Constraint("Horizontal", 5),
    Sketcher.Constraint("Vertical", 6),
    Sketcher.Constraint("Horizontal", 7),
    Sketcher.Constraint("Vertical", 8),
    Sketcher.Constraint("Horizontal", 9),
    Sketcher.Constraint("Vertical", 10),
    Sketcher.Constraint("Horizontal", 11),
    Sketcher.Constraint("Vertical", 12),
    Sketcher.Constraint("Horizontal", 13),
    Sketcher.Constraint("Vertical", 14),
    Sketcher.Constraint("Horizontal", 15),
    Sketcher.Constraint("Horizontal", 5, 2, 8, 2),
    Sketcher.Constraint("Horizontal", 7, 2, 10, 2),
    Sketcher.Constraint("Horizontal", 1, 2, 12, 2),
    Sketcher.Constraint("Horizontal", 3, 2, 14, 2),
    Sketcher.Constraint("Vertical", 3, 2, 4, 2),
    Sketcher.Constraint("Vertical", 2, 2, 5, 2),
    Sketcher.Constraint("Vertical", 11, 2, 12, 2),
    Sketcher.Constraint("Vertical", 10, 2, 13, 2),
    Sketcher.Constraint("Equal", 7, 9),
    Sketcher.Constraint("Equal", 2, 4),
    Sketcher.Constraint("DistanceX", 1, 1, 1, 2, 4.8),
    Sketcher.Constraint("DistanceY", 0, 2, 0, 1, 1.5),
    Sketcher.Constraint("DistanceY", 3, 2, 4, 2, 11.0),
    Sketcher.Constraint("DistanceX", 8, 2, 4, 2, 57.0),
    Sketcher.Constraint("DistanceY", -1, 1, 0, 2, 64.714699),
    Sketcher.Constraint("DistanceX", -1, 1, 0, 2, 13.048896),
])
pad2 = doc.addObject("PartDesign::Pad", "Pad001")
body.addObject(pad2)
pad2.Profile = sketch2
pad2.Length = 10.4

sketch3 = doc.addObject("Sketcher::SketchObject", "Sketch002")
body.addObject(sketch3)
sketch3.AttachmentSupport = (doc.XY_Plane, [""])
sketch3.MapMode = "FlatFace"
sketch3.addGeometry([
    Part.LineSegment(V(-51, 62, 0), V(-51, -65, 0)),
    Part.LineSegment(V(-51, -65, 0), V(25, -65, 0)),
    Part.LineSegment(V(25, -65, 0), V(25, 62, 0)),
    Part.LineSegment(V(25, 62, 0), V(-51, 62, 0)),
    Part.LineSegment(V(25, -64, 0), V(-51, -64, 0)),
    Part.LineSegment(V(-51, -64, 0), V(-51, 61, 0)),
    Part.LineSegment(V(-51, 61, 0), V(25, 61, 0)),
    Part.LineSegment(V(25, 61, 0), V(25, -64, 0)),
], False)
sketch3.addConstraint([
    Sketcher.Constraint("Coincident", 0, 2, 1, 1),
    Sketcher.Constraint("Coincident", 1, 2, 2, 1),
    Sketcher.Constraint("Coincident", 2, 2, 3, 1),
    Sketcher.Constraint("Coincident", 3, 2, 0, 1),
    Sketcher.Constraint("Coincident", 4, 2, 5, 1),
    Sketcher.Constraint("Coincident", 5, 2, 6, 1),
    Sketcher.Constraint("Coincident", 6, 2, 7, 1),
    Sketcher.Constraint("Coincident", 7, 2, 4, 1),
    Sketcher.Constraint("Vertical", 0),
    Sketcher.Constraint("Horizontal", 1),
    Sketcher.Constraint("Vertical", 2),
    Sketcher.Constraint("Horizontal", 3),
    Sketcher.Constraint("Horizontal", 4),
    Sketcher.Constraint("Vertical", 5),
    Sketcher.Constraint("Horizontal", 6),
    Sketcher.Constraint("Vertical", 7),
    Sketcher.Constraint("DistanceX", 1, 1, 1, 2, 76.8),
    Sketcher.Constraint("DistanceX", 4, 2, 4, 1, 75.2),
    Sketcher.Constraint("DistanceY", 0, 2, 0, 1, 126.8),
    Sketcher.Constraint("DistanceY", 5, 1, 5, 2, 125.2),
    Sketcher.Constraint("DistanceX", 4, 2, 1, 2, 76.0),
    Sketcher.Constraint("DistanceY", 4, 2, 3, 2, 126.0),
    Sketcher.Constraint("DistanceY", 0, 2, -1, 1, 64.685301),
    Sketcher.Constraint("DistanceX", 0, 2, -1, 1, 51.451104),
])
pad3 = doc.addObject("PartDesign::Pad", "Pad002")
body.addObject(pad3)
pad3.Profile = sketch3
pad3.Length = 9.8

sketch4 = doc.addObject("Sketcher::SketchObject", "Sketch003")
body.addObject(sketch4)
sketch4.AttachmentSupport = (doc.XY_Plane, [""])
sketch4.MapMode = "FlatFace"
sketch4.addGeometry([
    Part.LineSegment(V(-45.6, 54.8, 0), V(-49.1, 54.8, 0)),
    Part.LineSegment(V(-49.1, 54.8, 0), V(-49.1, 1.2, 0)),
    Part.LineSegment(V(-49.1, 1.2, 0), V(-45.6, 1.2, 0)),
    Part.LineSegment(V(-45.6, 1.2, 0), V(-45.6, -3.7, 0)),
    Part.LineSegment(V(-45.6, -3.7, 0), V(-49.1, -3.7, 0)),
    Part.LineSegment(V(-49.1, -3.7, 0), V(-49.1, -57.4, 0)),
    Part.LineSegment(V(-49.1, -57.4, 0), V(-45.6, -57.4, 0)),
    Part.LineSegment(V(-45.6, -57.4, 0), V(-45.6, -62.3, 0)),
    Part.LineSegment(V(-45.6, -62.3, 0), V(-15.5, -62.3, 0)),
    Part.LineSegment(V(-15.5, -62.3, 0), V(-15.5, -57.4, 0)),
    Part.LineSegment(V(-15.5, -57.4, 0), V(-10.6, -57.4, 0)),
    Part.LineSegment(V(-10.6, -57.4, 0), V(-10.6, -62.3, 0)),
    Part.LineSegment(V(-10.6, -62.3, 0), V(19.5, -62.3, 0)),
    Part.LineSegment(V(19.5, -62.3, 0), V(19.5, -57.4, 0)),
    Part.LineSegment(V(19.5, -57.4, 0), V(22.9, -57.4, 0)),
    Part.LineSegment(V(22.9, -57.4, 0), V(22.9, -3.8, 0)),
    Part.LineSegment(V(22.9, -3.8, 0), V(19.5, -3.7, 0)),
    Part.LineSegment(V(19.5, -3.7, 0), V(19.5, 1.2, 0)),
    Part.LineSegment(V(19.5, 1.2, 0), V(22.9, 1.2, 0)),
    Part.LineSegment(V(22.9, 1.2, 0), V(22.9, 54.8, 0)),
    Part.LineSegment(V(22.9, 54.8, 0), V(19.5, 54.8, 0)),
    Part.LineSegment(V(19.5, 54.8, 0), V(19.5, 59.7, 0)),
    Part.LineSegment(V(19.5, 59.7, 0), V(-10.6, 59.7, 0)),
    Part.LineSegment(V(-10.6, 59.7, 0), V(-10.6, 54.8, 0)),
    Part.LineSegment(V(-10.6, 54.8, 0), V(-15.5, 54.8, 0)),
    Part.LineSegment(V(-15.5, 54.8, 0), V(-15.5, 59.7, 0)),
    Part.LineSegment(V(-15.5, 59.7, 0), V(-45.6, 59.7, 0)),
    Part.LineSegment(V(-45.6, 59.7, 0), V(-45.6, 54.8, 0)),
], False)
sketch4.addConstraint([
    Sketcher.Constraint("Coincident", 0, 2, 1, 1),
    Sketcher.Constraint("Coincident", 1, 2, 2, 1),
    Sketcher.Constraint("Coincident", 2, 2, 3, 1),
    Sketcher.Constraint("Coincident", 3, 2, 4, 1),
    Sketcher.Constraint("Coincident", 4, 2, 5, 1),
    Sketcher.Constraint("Coincident", 5, 2, 6, 1),
    Sketcher.Constraint("Coincident", 6, 2, 7, 1),
    Sketcher.Constraint("Coincident", 7, 2, 8, 1),
    Sketcher.Constraint("Coincident", 8, 2, 9, 1),
    Sketcher.Constraint("Coincident", 9, 2, 10, 1),
    Sketcher.Constraint("Coincident", 10, 2, 11, 1),
    Sketcher.Constraint("Coincident", 11, 2, 12, 1),
    Sketcher.Constraint("Coincident", 12, 2, 13, 1),
    Sketcher.Constraint("Coincident", 13, 2, 14, 1),
    Sketcher.Constraint("Coincident", 14, 2, 15, 1),
    Sketcher.Constraint("Coincident", 15, 2, 16, 1),
    Sketcher.Constraint("Coincident", 16, 2, 17, 1),
    Sketcher.Constraint("Coincident", 17, 2, 18, 1),
    Sketcher.Constraint("Coincident", 18, 2, 19, 1),
    Sketcher.Constraint("Coincident", 19, 2, 20, 1),
    Sketcher.Constraint("Coincident", 20, 2, 21, 1),
    Sketcher.Constraint("Coincident", 21, 2, 22, 1),
    Sketcher.Constraint("Coincident", 22, 2, 23, 1),
    Sketcher.Constraint("Coincident", 23, 2, 24, 1),
    Sketcher.Constraint("Coincident", 24, 2, 25, 1),
    Sketcher.Constraint("Coincident", 25, 2, 26, 1),
    Sketcher.Constraint("Coincident", 26, 2, 27, 1),
    Sketcher.Constraint("Coincident", 27, 2, 0, 1),
    Sketcher.Constraint("Horizontal", 0),
    Sketcher.Constraint("Vertical", 1),
    Sketcher.Constraint("Horizontal", 2),
    Sketcher.Constraint("Vertical", 3),
    Sketcher.Constraint("Horizontal", 4),
    Sketcher.Constraint("Vertical", 5),
    Sketcher.Constraint("Horizontal", 6),
    Sketcher.Constraint("Vertical", 7),
    Sketcher.Constraint("Horizontal", 8),
    Sketcher.Constraint("Vertical", 9),
    Sketcher.Constraint("Horizontal", 10),
    Sketcher.Constraint("Vertical", 11),
    Sketcher.Constraint("Horizontal", 12),
    Sketcher.Constraint("Vertical", 13),
    Sketcher.Constraint("Horizontal", 14),
    Sketcher.Constraint("Vertical", 15),
    Sketcher.Constraint("Vertical", 17),
    Sketcher.Constraint("Horizontal", 18),
    Sketcher.Constraint("Vertical", 19),
    Sketcher.Constraint("Horizontal", 20),
    Sketcher.Constraint("Vertical", 21),
    Sketcher.Constraint("Horizontal", 22),
    Sketcher.Constraint("Vertical", 23),
    Sketcher.Constraint("Horizontal", 24),
    Sketcher.Constraint("Vertical", 25),
    Sketcher.Constraint("Horizontal", 26),
    Sketcher.Constraint("Vertical", 27),
    Sketcher.Constraint("Horizontal", 6, 2, 9, 2),
    Sketcher.Constraint("Horizontal", 8, 2, 11, 2),
    Sketcher.Constraint("Horizontal", 10, 2, 13, 2),
    Sketcher.Constraint("Horizontal", 4, 2, 16, 2),
    Sketcher.Constraint("Horizontal", 2, 2, 17, 2),
    Sketcher.Constraint("Horizontal", 0, 2, 19, 2),
    Sketcher.Constraint("Horizontal", 20, 2, 23, 2),
    Sketcher.Constraint("Horizontal", 22, 2, 25, 2),
    Sketcher.Constraint("Vertical", 1, 2, 4, 2),
    Sketcher.Constraint("Vertical", 3, 2, 6, 2),
    Sketcher.Constraint("Vertical", 13, 2, 16, 2),
    Sketcher.Constraint("Vertical", 15, 2, 18, 2),
    Sketcher.Constraint("Vertical", 17, 2, 20, 2),
    Sketcher.Constraint("Vertical", 11, 2, 22, 2),
    Sketcher.Constraint("Vertical", 9, 2, 24, 2),
    Sketcher.Constraint("Vertical", 7, 2, 26, 2),
    Sketcher.Constraint("Equal", 8, 12),
    Sketcher.Constraint("Equal", 6, 14),
    Sketcher.Constraint("Equal", 24, 3),
    Sketcher.Constraint("Equal", 1, 5),
    Sketcher.Constraint("Equal", 3, 7),
    Sketcher.Constraint("Equal", 17, 21),
    Sketcher.Constraint("DistanceX", 8, 1, 8, 2, 30.1),
    Sketcher.Constraint("DistanceX", 10, 1, 10, 2, 4.9),
    Sketcher.Constraint("DistanceX", 0, 2, 19, 2, 72.0),
    Sketcher.Constraint("DistanceY", 1, 2, 1, 1, 53.65),
    Sketcher.Constraint("DistanceY", -1, 1, 0, 2, 54.814699),
    Sketcher.Constraint("DistanceY", 15, 1, 15, 2, 53.618333),
    Sketcher.Constraint("DistanceX", 0, 2, -1, 1, 49.051104),
])
pad4 = doc.addObject("PartDesign::Pad", "Pad003")
body.addObject(pad4)
pad4.Profile = sketch4
pad4.Length = 3

sketch5 = doc.addObject("Sketcher::SketchObject", "Sketch004")
body.addObject(sketch5)
sketch5.AttachmentSupport = (doc.YZ_Plane, [""])
sketch5.MapMode = "FlatFace"
sketch5.AttachmentOffset = App.Placement(V(0, 0, 6.948896), App.Rotation())
sketch5.addGeometry([
    Part.LineSegment(V(67.7, 9, 0), V(75.7, 9, 0)),
    Part.ArcOfCircle(Part.Circle(V(71.7, 9, 0), V(0, 0, 1), 4), math.radians(180), math.radians(360)),
], False)
sketch5.addConstraint([
    Sketcher.Constraint("Coincident", 0, 1, 1, 1),
    Sketcher.Constraint("Coincident", 1, 2, 0, 2),
    Sketcher.Constraint("Horizontal", 0),
    Sketcher.Constraint("Horizontal", 1, 3, 0, 1),
    Sketcher.Constraint("Radius", 1, 4.0),
    Sketcher.Constraint("DistanceY", -1, 1, 1, 3, 9.0),
    Sketcher.Constraint("DistanceX", -1, 1, 1, 3, 71.714699),
])
pocket1 = doc.addObject("PartDesign::Pocket", "Pocket")
body.addObject(pocket1)
pocket1.Profile = sketch5
pocket1.Type = "TwoLengths"
pocket1.Length = 52
pocket1.Length2 = 12

sketch6 = doc.addObject("Sketcher::SketchObject", "Sketch005")
body.addObject(sketch6)
sketch6.AttachmentSupport = (doc.YZ_Plane, [""])
sketch6.MapMode = "FlatFace"
sketch6.AttachmentOffset = App.Placement(V(0, 0, 6.948896), App.Rotation())
sketch6.addGeometry([
    Part.LineSegment(V(75.7, 9, 0), V(77.7, 9, 0)),
    Part.ArcOfCircle(Part.Circle(V(71.7, 9, 0), V(0, 0, 1), 6), math.radians(180), math.radians(360)),
    Part.LineSegment(V(65.7, 9, 0), V(67.7, 9, 0)),
    Part.ArcOfCircle(Part.Circle(V(71.7, 9, 0), V(0, 0, 1), 4), math.radians(180), math.radians(360)),
], False)
sketch6.addConstraint([
    Sketcher.Constraint("Coincident", 0, 2, 1, 2),
    Sketcher.Constraint("Coincident", 1, 1, 2, 1),
    Sketcher.Constraint("Coincident", 2, 2, 3, 1),
    Sketcher.Constraint("Coincident", 3, 2, 0, 1),
    Sketcher.Constraint("Horizontal", 0),
    Sketcher.Constraint("Horizontal", 2),
    Sketcher.Constraint("Coincident", 3, 3, 1, 3),
    Sketcher.Constraint("Horizontal", 3, 3, 0, 2),
    Sketcher.Constraint("Horizontal", 0, 2, 1, 1),
    Sketcher.Constraint("Radius", 1, 6.0),
    Sketcher.Constraint("Radius", 3, 4.0),
    Sketcher.Constraint("DistanceY", -1, 1, 1, 3, 9.0),
    Sketcher.Constraint("DistanceX", -1, 1, 1, 3, 71.714699),
])
pocket2 = doc.addObject("PartDesign::Pocket", "Pocket001")
body.addObject(pocket2)
pocket2.Profile = sketch6
pocket2.Type = "TwoLengths"
pocket2.Length = 42
pocket2.Length2 = 2

doc.recompute()
